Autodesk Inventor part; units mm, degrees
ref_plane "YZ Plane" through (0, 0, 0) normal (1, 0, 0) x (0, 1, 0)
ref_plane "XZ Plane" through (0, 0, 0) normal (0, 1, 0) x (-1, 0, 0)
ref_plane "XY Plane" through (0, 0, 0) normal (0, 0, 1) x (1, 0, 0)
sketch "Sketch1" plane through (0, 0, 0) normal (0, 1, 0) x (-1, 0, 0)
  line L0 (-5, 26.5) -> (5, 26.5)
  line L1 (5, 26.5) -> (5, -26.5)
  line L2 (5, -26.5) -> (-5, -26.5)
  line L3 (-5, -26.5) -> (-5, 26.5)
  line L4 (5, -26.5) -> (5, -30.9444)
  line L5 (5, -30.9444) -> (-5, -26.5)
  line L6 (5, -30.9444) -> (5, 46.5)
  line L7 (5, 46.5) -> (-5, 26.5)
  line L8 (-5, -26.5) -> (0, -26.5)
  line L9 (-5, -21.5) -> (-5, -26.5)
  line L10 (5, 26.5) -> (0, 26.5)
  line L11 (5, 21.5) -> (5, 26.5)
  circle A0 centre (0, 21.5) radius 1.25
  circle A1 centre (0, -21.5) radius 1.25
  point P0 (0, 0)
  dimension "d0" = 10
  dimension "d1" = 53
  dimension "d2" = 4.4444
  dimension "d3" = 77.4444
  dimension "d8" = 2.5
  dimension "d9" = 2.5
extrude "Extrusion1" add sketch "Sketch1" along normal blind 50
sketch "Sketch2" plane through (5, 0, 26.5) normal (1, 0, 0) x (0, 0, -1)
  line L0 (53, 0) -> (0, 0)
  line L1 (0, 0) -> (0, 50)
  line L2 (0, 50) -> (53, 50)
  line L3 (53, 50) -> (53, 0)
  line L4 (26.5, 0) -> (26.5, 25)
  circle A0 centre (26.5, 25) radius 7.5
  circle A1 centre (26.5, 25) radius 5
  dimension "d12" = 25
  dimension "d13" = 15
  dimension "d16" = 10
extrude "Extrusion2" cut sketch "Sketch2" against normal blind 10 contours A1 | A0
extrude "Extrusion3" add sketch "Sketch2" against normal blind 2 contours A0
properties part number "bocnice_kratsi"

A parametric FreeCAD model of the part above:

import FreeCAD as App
import Part
import Sketcher

doc = App.newDocument("Part")
body = doc.addObject("PartDesign::Body", "Body")

# Sketch on XZ plane
sketch1 = body.newObject("Sketcher::SketchObject", "Sketch")
sketch1.AttachmentSupport = (doc.getObject("XZ_Plane"), [""])
sketch1.MapMode = "FlatFace"
sketch1.addGeometry([
    Part.LineSegment(App.Vector(-5, 46.5, 0), App.Vector(5, 26.5, 0)),  # 0
    Part.LineSegment(App.Vector(5, 26.5, 0), App.Vector(5, -26.5, 0)),  # 1
    Part.LineSegment(App.Vector(5, -26.5, 0), App.Vector(-5, -30.9444, 0)),  # 2
    Part.LineSegment(App.Vector(-5, -30.9444, 0), App.Vector(-5, 46.5, 0)),  # 3
    Part.Circle(App.Vector(0, -21.5, 0), App.Vector(0, 0, 1), 1.25),  # 4
    Part.Circle(App.Vector(0, 21.5, 0), App.Vector(0, 0, 1), 1.25),  # 5
], False)
sketch1.addConstraint([
    Sketcher.Constraint("Coincident", 0, 2, 1, 1),
    Sketcher.Constraint("Coincident", 1, 2, 2, 1),
    Sketcher.Constraint("Coincident", 2, 2, 3, 1),
    Sketcher.Constraint("Coincident", 3, 2, 0, 1),
    Sketcher.Constraint("Vertical", 1),
    Sketcher.Constraint("Vertical", 3),
    Sketcher.Constraint("Equal", 4, 5),
    Sketcher.Constraint("Symmetric", 4, 3, 5, 3, -1, 1),
    Sketcher.Constraint("PointOnObject", 4, 3, -2),
    Sketcher.Constraint("Diameter", 4, 2.5),
    Sketcher.Constraint("DistanceY", 1, 2, 1, 1, 53.0),
    Sketcher.Constraint("DistanceX", 2, 2, 1, 2, 10.0),
    Sketcher.Constraint("DistanceY", 3, 1, 3, 2, 77.4444),
    Sketcher.Constraint("DistanceX", -1, 1, 0, 2, 5.0),
    Sketcher.Constraint("DistanceY", 4, 3, 5, 3, 43.0),
    Sketcher.Constraint("DistanceY", 5, 3, 0, 2, 5.0),
    Sketcher.Constraint("DistanceY", 0, 2, 3, 2, 20.0),
])
pad1 = body.newObject("PartDesign::Pad", "Pad")
pad1.Profile = sketch1
pad1.Length = 50
pad1.Reversed = True

# Sketch on YZ plane
sketch2 = body.newObject("Sketcher::SketchObject", "Sketch001")
sketch2.AttachmentSupport = (doc.getObject("YZ_Plane"), [""])
sketch2.MapMode = "FlatFace"
sketch2.AttachmentOffset = App.Placement(App.Vector(0, 0, 5), App.Rotation())
sketch2.addGeometry(Part.Circle(App.Vector(25, 0, 0), App.Vector(0, 0, 1), 7.5), False)
sketch2.addConstraint([
    Sketcher.Constraint("PointOnObject", 0, 3, -1),
    Sketcher.Constraint("Diameter", 0, 15.0),
    Sketcher.Constraint("DistanceX", -1, 1, 0, 3, 25.0),
])
pocket1 = body.newObject("PartDesign::Pocket", "Pocket")
pocket1.Profile = sketch2
pocket1.Length = 10

# Sketch on YZ plane
sketch3 = body.newObject("Sketcher::SketchObject", "Sketch002")
sketch3.AttachmentSupport = (doc.getObject("YZ_Plane"), [""])
sketch3.MapMode = "FlatFace"
sketch3.AttachmentOffset = App.Placement(App.Vector(0, 0, 5), App.Rotation())
sketch3.addGeometry([
    Part.Circle(App.Vector(25, 0, 0), App.Vector(0, 0, 1), 7.5),
    Part.Circle(App.Vector(25, 0, 0), App.Vector(0, 0, 1), 5),
], False)
sketch3.addConstraint([
    Sketcher.Constraint("Coincident", 1, 3, 0, 3),
    Sketcher.Constraint("PointOnObject", 0, 3, -1),
    Sketcher.Constraint("Diameter", 0, 15.0),
    Sketcher.Constraint("Diameter", 1, 10.0),
    Sketcher.Constraint("DistanceX", -1, 1, 0, 3, 25.0),
])
pad2 = body.newObject("PartDesign::Pad", "Pad001")
pad2.Profile = sketch3
pad2.Length = 2
pad2.Reversed = True

doc.recompute()
